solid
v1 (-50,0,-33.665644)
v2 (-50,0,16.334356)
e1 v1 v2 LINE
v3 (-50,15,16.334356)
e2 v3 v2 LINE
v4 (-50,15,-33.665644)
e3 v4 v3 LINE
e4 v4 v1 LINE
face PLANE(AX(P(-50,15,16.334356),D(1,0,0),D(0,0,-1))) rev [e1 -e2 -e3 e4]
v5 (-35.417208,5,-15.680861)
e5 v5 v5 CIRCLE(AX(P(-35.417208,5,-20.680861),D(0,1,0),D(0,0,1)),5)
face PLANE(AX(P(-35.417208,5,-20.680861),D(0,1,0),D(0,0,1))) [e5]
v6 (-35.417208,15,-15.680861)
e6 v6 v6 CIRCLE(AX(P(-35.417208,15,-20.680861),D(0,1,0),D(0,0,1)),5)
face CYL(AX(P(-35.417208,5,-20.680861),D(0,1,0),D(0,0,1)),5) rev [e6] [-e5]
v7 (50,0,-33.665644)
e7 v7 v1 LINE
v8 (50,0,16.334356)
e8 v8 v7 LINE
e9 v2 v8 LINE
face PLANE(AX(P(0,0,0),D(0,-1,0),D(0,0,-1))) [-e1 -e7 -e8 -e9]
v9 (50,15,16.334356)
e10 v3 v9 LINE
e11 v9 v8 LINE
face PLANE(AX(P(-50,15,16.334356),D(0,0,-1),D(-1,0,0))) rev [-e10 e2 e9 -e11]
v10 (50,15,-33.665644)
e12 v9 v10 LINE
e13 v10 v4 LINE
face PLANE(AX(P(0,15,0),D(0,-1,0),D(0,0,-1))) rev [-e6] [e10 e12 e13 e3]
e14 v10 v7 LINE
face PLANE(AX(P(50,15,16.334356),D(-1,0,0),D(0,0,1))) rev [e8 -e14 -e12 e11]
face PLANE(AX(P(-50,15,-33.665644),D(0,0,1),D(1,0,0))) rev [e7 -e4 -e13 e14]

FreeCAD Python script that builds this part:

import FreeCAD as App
import Part
import Sketcher
Q = App.Units.Quantity


def add_polygon(sketch, points):
    """Adds a closed chain of lines whose ends are joined by coincident constraints."""
    first, n = sketch.GeometryCount, len(points)
    for a, b in zip(points, points[1:] + points[:1]):
        sketch.addGeometry(Part.LineSegment(App.Vector(*a, 0), App.Vector(*b, 0)), False)
    for i in range(n):
        sketch.addConstraint(Sketcher.Constraint("Coincident", first + i, 2, first + (i + 1) % n, 1))

doc = App.newDocument("Part")
body = doc.addObject("PartDesign::Body", "Body")

sketch1 = body.newObject("Sketcher::SketchObject", "Sketch")
sketch1.AttachmentSupport = (doc.getObject("XZ_Plane"), [""])
sketch1.MapMode = "FlatFace"
add_polygon(sketch1, [(-50, -34), (-50, 16), (50, 16), (50, -34)])
sketch1.addConstraint([
    Sketcher.Constraint("Vertical", 0),
    Sketcher.Constraint("Horizontal", 1),
    Sketcher.Constraint("Vertical", 2),
    Sketcher.Constraint("Horizontal", 3),
    Sketcher.Constraint("DistanceX", 1, 1, 1, 2, Q("100 mm")),
    Sketcher.Constraint("DistanceY", 0, 1, 0, 2, Q("50 mm")),
    Sketcher.Constraint("DistanceX", 0, 2, -1, 1, Q("50 mm")),
    Sketcher.Constraint("DistanceY", -1, 1, 0, 2, Q("16.334356 mm")),
])
pad1 = body.newObject("PartDesign::Pad", "Pad")
pad1.Profile = sketch1
pad1.Length = 15
pad1.Reversed = True

sketch2 = body.newObject("Sketcher::SketchObject", "Sketch001")
sketch2.AttachmentSupport = (doc.getObject("XZ_Plane"), [""])
sketch2.MapMode = "FlatFace"
sketch2.AttachmentOffset = App.Placement(App.Vector(0, 0, -15), App.Rotation())
sketch2.addGeometry(Part.Circle(App.Vector(-35, -21, 0), App.Vector(0, 0, 1), 5), False)
sketch2.addConstraint([
    Sketcher.Constraint("Diameter", 0, Q("10 mm")),
    Sketcher.Constraint("DistanceY", 0, 3, -1, 1, Q("20.680861 mm")),
    Sketcher.Constraint("DistanceX", 0, 3, -1, 1, Q("35.417208 mm")),
])
pocket1 = body.newObject("PartDesign::Pocket", "Pocket")
pocket1.Profile = sketch2
pocket1.Length = 10
pocket1.Reversed = True

doc.recompute()
